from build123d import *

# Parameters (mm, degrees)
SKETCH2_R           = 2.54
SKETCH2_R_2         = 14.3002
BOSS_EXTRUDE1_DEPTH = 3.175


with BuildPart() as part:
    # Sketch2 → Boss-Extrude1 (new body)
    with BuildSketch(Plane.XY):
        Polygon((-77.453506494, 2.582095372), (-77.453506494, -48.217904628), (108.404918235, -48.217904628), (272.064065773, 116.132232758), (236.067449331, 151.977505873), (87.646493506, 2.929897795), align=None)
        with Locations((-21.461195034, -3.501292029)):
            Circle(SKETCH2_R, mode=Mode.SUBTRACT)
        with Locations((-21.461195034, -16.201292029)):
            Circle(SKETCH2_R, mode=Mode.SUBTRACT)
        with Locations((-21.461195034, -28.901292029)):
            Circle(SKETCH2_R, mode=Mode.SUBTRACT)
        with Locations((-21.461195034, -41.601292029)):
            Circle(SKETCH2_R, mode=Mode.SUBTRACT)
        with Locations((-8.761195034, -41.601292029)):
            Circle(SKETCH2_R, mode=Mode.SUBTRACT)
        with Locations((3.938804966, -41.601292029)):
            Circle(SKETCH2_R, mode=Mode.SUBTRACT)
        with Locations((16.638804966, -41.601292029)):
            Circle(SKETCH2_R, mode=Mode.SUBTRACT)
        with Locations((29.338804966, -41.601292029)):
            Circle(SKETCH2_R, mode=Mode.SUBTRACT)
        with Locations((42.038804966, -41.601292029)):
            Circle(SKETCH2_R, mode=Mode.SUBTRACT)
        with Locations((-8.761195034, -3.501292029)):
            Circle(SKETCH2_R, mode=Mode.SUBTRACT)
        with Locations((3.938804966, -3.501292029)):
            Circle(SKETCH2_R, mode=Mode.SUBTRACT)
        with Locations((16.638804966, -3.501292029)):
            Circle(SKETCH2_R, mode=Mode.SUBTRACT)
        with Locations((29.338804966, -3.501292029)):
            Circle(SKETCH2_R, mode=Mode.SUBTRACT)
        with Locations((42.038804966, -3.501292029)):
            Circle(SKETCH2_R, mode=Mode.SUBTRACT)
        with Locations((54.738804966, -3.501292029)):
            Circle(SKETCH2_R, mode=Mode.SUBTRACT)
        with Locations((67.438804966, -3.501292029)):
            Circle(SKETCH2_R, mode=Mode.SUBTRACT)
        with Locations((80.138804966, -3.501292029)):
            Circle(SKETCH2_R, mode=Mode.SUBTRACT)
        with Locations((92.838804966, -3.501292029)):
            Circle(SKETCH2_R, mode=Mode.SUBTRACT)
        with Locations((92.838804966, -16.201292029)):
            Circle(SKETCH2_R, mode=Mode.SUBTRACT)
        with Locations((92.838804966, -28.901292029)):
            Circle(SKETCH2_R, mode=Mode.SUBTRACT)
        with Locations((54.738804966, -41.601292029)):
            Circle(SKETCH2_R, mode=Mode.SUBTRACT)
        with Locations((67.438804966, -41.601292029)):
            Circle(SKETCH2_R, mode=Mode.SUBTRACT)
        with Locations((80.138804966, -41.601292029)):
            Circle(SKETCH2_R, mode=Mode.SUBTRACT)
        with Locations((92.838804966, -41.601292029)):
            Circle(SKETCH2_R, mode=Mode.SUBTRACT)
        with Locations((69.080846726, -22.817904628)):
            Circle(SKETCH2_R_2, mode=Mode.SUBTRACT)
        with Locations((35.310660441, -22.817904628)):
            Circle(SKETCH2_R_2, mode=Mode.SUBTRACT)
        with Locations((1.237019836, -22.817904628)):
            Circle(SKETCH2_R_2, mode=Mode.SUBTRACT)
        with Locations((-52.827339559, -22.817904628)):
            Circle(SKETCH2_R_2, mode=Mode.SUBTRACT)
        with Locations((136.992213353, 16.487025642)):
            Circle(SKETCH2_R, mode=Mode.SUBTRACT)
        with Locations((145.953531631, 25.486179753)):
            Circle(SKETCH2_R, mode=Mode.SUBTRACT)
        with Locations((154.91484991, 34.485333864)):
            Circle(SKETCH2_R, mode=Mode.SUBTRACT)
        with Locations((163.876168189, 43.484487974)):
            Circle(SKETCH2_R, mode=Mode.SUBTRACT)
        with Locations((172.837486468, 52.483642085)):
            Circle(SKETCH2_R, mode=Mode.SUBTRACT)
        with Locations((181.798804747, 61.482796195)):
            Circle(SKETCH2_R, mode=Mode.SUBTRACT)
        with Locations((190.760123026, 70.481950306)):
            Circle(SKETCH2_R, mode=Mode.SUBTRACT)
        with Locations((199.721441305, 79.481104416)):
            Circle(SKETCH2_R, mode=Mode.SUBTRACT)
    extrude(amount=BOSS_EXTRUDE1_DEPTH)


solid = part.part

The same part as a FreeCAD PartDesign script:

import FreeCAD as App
import Part
import Sketcher
from FreeCAD import Vector
Q = App.Units.Quantity


def add_polygon(sketch, points):
    """Adds a closed chain of lines whose ends are joined by coincident constraints."""
    first, n = sketch.GeometryCount, len(points)
    for a, b in zip(points, points[1:] + points[:1]):
        sketch.addGeometry(Part.LineSegment(App.Vector(*a, 0), App.Vector(*b, 0)), False)
    for i in range(n):
        sketch.addConstraint(Sketcher.Constraint("Coincident", first + i, 2, first + (i + 1) % n, 1))

doc = App.newDocument("Part")
body = doc.addObject("PartDesign::Body", "Body")

# Sketch on XY plane
sketch1 = body.newObject("Sketcher::SketchObject", "Sketch")
sketch1.AttachmentSupport = (doc.getObject("XY_Plane"), [""])
sketch1.MapMode = "FlatFace"
add_polygon(sketch1, [(-77.5, 2.6), (-77.5, -48.2), (108.4, -48.2), (272.1, 116.1), (236.1, 152), (87.6, 2.9)])  # lines 0-5
sketch1.addGeometry(Part.Circle(Vector(-21.5, -41.6, 0), Vector(0, 0, 1), 2.5), False)  # 6
sketch1.addGeometry(Part.Circle(Vector(-8.8, -41.6, 0), Vector(0, 0, 1), 2.5), False)  # 7
sketch1.addGeometry(Part.Circle(Vector(-21.5, -28.9, 0), Vector(0, 0, 1), 2.5), False)  # 8
sketch1.addGeometry(Part.Circle(Vector(-52.8, -22.8, 0), Vector(0, 0, 1), 14.3), False)  # 9
sketch1.addGeometry(Part.Circle(Vector(-21.5, -16.2, 0), Vector(0, 0, 1), 2.5), False)  # 10
sketch1.addGeometry(Part.Circle(Vector(3.9, -41.6, 0), Vector(0, 0, 1), 2.5), False)  # 11
sketch1.addGeometry(Part.Circle(Vector(16.6, -41.6, 0), Vector(0, 0, 1), 2.5), False)  # 12
sketch1.addGeometry(Part.Circle(Vector(29.3, -41.6, 0), Vector(0, 0, 1), 2.5), False)  # 13
sketch1.addGeometry(Part.Circle(Vector(42, -41.6, 0), Vector(0, 0, 1), 2.5), False)  # 14
sketch1.addGeometry(Part.Circle(Vector(54.7, -41.6, 0), Vector(0, 0, 1), 2.5), False)  # 15
sketch1.addGeometry(Part.Circle(Vector(67.4, -41.6, 0), Vector(0, 0, 1), 2.5), False)  # 16
sketch1.addGeometry(Part.Circle(Vector(1.2, -22.8, 0), Vector(0, 0, 1), 14.3), False)  # 17
sketch1.addGeometry(Part.Circle(Vector(35.3, -22.8, 0), Vector(0, 0, 1), 14.3), False)  # 18
sketch1.addGeometry(Part.Circle(Vector(-21.5, -3.5, 0), Vector(0, 0, 1), 2.5), False)  # 19
sketch1.addGeometry(Part.Circle(Vector(-8.8, -3.5, 0), Vector(0, 0, 1), 2.5), False)  # 20
sketch1.addGeometry(Part.Circle(Vector(3.9, -3.5, 0), Vector(0, 0, 1), 2.5), False)  # 21
sketch1.addGeometry(Part.Circle(Vector(16.6, -3.5, 0), Vector(0, 0, 1), 2.5), False)  # 22
sketch1.addGeometry(Part.Circle(Vector(29.3, -3.5, 0), Vector(0, 0, 1), 2.5), False)  # 23
sketch1.addGeometry(Part.Circle(Vector(42, -3.5, 0), Vector(0, 0, 1), 2.5), False)  # 24
sketch1.addGeometry(Part.Circle(Vector(54.7, -3.5, 0), Vector(0, 0, 1), 2.5), False)  # 25
sketch1.addGeometry(Part.Circle(Vector(67.4, -3.5, 0), Vector(0, 0, 1), 2.5), False)  # 26
sketch1.addGeometry(Part.Circle(Vector(80.1, -41.6, 0), Vector(0, 0, 1), 2.5), False)  # 27
sketch1.addGeometry(Part.Circle(Vector(92.8, -41.6, 0), Vector(0, 0, 1), 2.5), False)  # 28
sketch1.addGeometry(Part.Circle(Vector(92.8, -28.9, 0), Vector(0, 0, 1), 2.5), False)  # 29
sketch1.addGeometry(Part.Circle(Vector(69.1, -22.8, 0), Vector(0, 0, 1), 14.3), False)  # 30
sketch1.addGeometry(Part.Circle(Vector(92.8, -16.2, 0), Vector(0, 0, 1), 2.5), False)  # 31
sketch1.addGeometry(Part.Circle(Vector(80.1, -3.5, 0), Vector(0, 0, 1), 2.5), False)  # 32
sketch1.addGeometry(Part.Circle(Vector(92.8, -3.5, 0), Vector(0, 0, 1), 2.5), False)  # 33
sketch1.addGeometry(Part.Circle(Vector(137, 16.5, 0), Vector(0, 0, 1), 2.5), False)  # 34
sketch1.addGeometry(Part.Circle(Vector(146, 25.5, 0), Vector(0, 0, 1), 2.5), False)  # 35
sketch1.addGeometry(Part.Circle(Vector(154.9, 34.5, 0), Vector(0, 0, 1), 2.5), False)  # 36
sketch1.addGeometry(Part.Circle(Vector(163.9, 43.5, 0), Vector(0, 0, 1), 2.5), False)  # 37
sketch1.addGeometry(Part.Circle(Vector(172.8, 52.5, 0), Vector(0, 0, 1), 2.5), False)  # 38
sketch1.addGeometry(Part.Circle(Vector(181.8, 61.5, 0), Vector(0, 0, 1), 2.5), False)  # 39
sketch1.addGeometry(Part.Circle(Vector(190.8, 70.5, 0), Vector(0, 0, 1), 2.5), False)  # 40
sketch1.addGeometry(Part.Circle(Vector(199.7, 79.5, 0), Vector(0, 0, 1), 2.5), False)  # 41
sketch1.addConstraint([
    Sketcher.Constraint("Vertical", 0),
    Sketcher.Constraint("Horizontal", 1),
    Sketcher.Constraint("Equal", 6, 7),
    Sketcher.Constraint("Equal", 7, 8),
    Sketcher.Constraint("Equal", 8, 10),
    Sketcher.Constraint("Equal", 10, 11),
    Sketcher.Constraint("Equal", 11, 12),
    Sketcher.Constraint("Equal", 12, 13),
    Sketcher.Constraint("Equal", 13, 14),
    Sketcher.Constraint("Equal", 14, 15),
    Sketcher.Constraint("Equal", 15, 16),
    Sketcher.Constraint("Equal", 9, 17),
    Sketcher.Constraint("Equal", 17, 18),
    Sketcher.Constraint("Equal", 16, 19),
    Sketcher.Constraint("Equal", 19, 20),
    Sketcher.Constraint("Equal", 20, 21),
    Sketcher.Constraint("Equal", 21, 22),
    Sketcher.Constraint("Equal", 22, 23),
    Sketcher.Constraint("Equal", 23, 24),
    Sketcher.Constraint("Equal", 24, 25),
    Sketcher.Constraint("Equal", 25, 26),
    Sketcher.Constraint("Equal", 26, 27),
    Sketcher.Constraint("Equal", 27, 28),
    Sketcher.Constraint("Equal", 28, 29),
    Sketcher.Constraint("Equal", 18, 30),
    Sketcher.Constraint("Equal", 29, 31),
    Sketcher.Constraint("Equal", 31, 32),
    Sketcher.Constraint("Equal", 32, 33),
    Sketcher.Constraint("Equal", 33, 34),
    Sketcher.Constraint("Equal", 34, 35),
    Sketcher.Constraint("Equal", 35, 36),
    Sketcher.Constraint("Equal", 36, 37),
    Sketcher.Constraint("Equal", 37, 38),
    Sketcher.Constraint("Equal", 38, 39),
    Sketcher.Constraint("Equal", 39, 40),
    Sketcher.Constraint("Equal", 40, 41),
    Sketcher.Constraint("Perpendicular", 2, 3),
    Sketcher.Constraint("Perpendicular", 3, 4),
    Sketcher.Constraint("Horizontal", 6, 3, 7, 3),
    Sketcher.Constraint("Horizontal", 7, 3, 11, 3),
    Sketcher.Constraint("Horizontal", 11, 3, 12, 3),
    Sketcher.Constraint("Horizontal", 12, 3, 13, 3),
    Sketcher.Constraint("Horizontal", 13, 3, 14, 3),
    Sketcher.Constraint("Horizontal", 14, 3, 15, 3),
    Sketcher.Constraint("Horizontal", 15, 3, 16, 3),
    Sketcher.Constraint("Horizontal", 9, 3, 17, 3),
    Sketcher.Constraint("Horizontal", 17, 3, 18, 3),
    Sketcher.Constraint("Horizontal", 19, 3, 20, 3),
    Sketcher.Constraint("Horizontal", 20, 3, 21, 3),
    Sketcher.Constraint("Horizontal", 21, 3, 22, 3),
    Sketcher.Constraint("Horizontal", 22, 3, 23, 3),
    Sketcher.Constraint("Horizontal", 23, 3, 24, 3),
    Sketcher.Constraint("Horizontal", 24, 3, 25, 3),
    Sketcher.Constraint("Horizontal", 25, 3, 26, 3),
    Sketcher.Constraint("Horizontal", 16, 3, 27, 3),
    Sketcher.Constraint("Horizontal", 27, 3, 28, 3),
    Sketcher.Constraint("Horizontal", 8, 3, 29, 3),
    Sketcher.Constraint("Horizontal", 18, 3, 30, 3),
    Sketcher.Constraint("Horizontal", 10, 3, 31, 3),
    Sketcher.Constraint("Horizontal", 26, 3, 32, 3),
    Sketcher.Constraint("Horizontal", 32, 3, 33, 3),
    Sketcher.Constraint("Vertical", 6, 3, 8, 3),
    Sketcher.Constraint("Vertical", 8, 3, 10, 3),
    Sketcher.Constraint("Vertical", 10, 3, 19, 3),
    Sketcher.Constraint("Vertical", 7, 3, 20, 3),
    Sketcher.Constraint("Vertical", 11, 3, 21, 3),
    Sketcher.Constraint("Vertical", 12, 3, 22, 3),
    Sketcher.Constraint("Vertical", 13, 3, 23, 3),
    Sketcher.Constraint("Vertical", 14, 3, 24, 3),
    Sketcher.Constraint("Vertical", 15, 3, 25, 3),
    Sketcher.Constraint("Vertical", 16, 3, 26, 3),
    Sketcher.Constraint("Vertical", 28, 3, 29, 3),
    Sketcher.Constraint("Vertical", 29, 3, 31, 3),
    Sketcher.Constraint("Vertical", 27, 3, 32, 3),
    Sketcher.Constraint("Vertical", 31, 3, 33, 3),
    Sketcher.Constraint("Diameter", 6, Q("0.2 in")),
    Sketcher.Constraint("DistanceY", 0, 2, 0, 1, Q("2 in")),
    Sketcher.Constraint("Distance", 3, Q("2 in")),
    Sketcher.Constraint("Diameter", 9, Q("1.126 in")),
    Sketcher.Constraint("DistanceY", 6, 3, 10, 3, Q("1 in")),
    Sketcher.Constraint("DistanceX", 6, 3, 11, 3, Q("1 in")),
    Sketcher.Constraint("DistanceX", 7, 3, 12, 3, Q("1 in")),
    Sketcher.Constraint("DistanceX", 11, 3, 13, 3, Q("1 in")),
    Sketcher.Constraint("DistanceX", 12, 3, 14, 3, Q("1 in")),
    Sketcher.Constraint("DistanceX", 13, 3, 15, 3, Q("1 in")),
    Sketcher.Constraint("DistanceX", 14, 3, 16, 3, Q("1 in")),
    Sketcher.Constraint("DistanceY", 8, 3, 19, 3, Q("1 in")),
    Sketcher.Constraint("DistanceX", 15, 3, 27, 3, Q("1 in")),
    Sketcher.Constraint("DistanceX", 16, 3, 28, 3, Q("1 in")),
    Sketcher.Constraint("DistanceY", 0, 2, 9, 3, Q("1 in")),
    Sketcher.Constraint("DistanceX", 6, 3, 7, 3, Q("0.5 in")),
    Sketcher.Constraint("DistanceY", 6, 3, 8, 3, Q("0.5 in")),
    Sketcher.Constraint("DistanceY", 41, 3, 3, 2, Q("72.496401 mm")),
    Sketcher.Constraint("DistanceX", 1, 1, 1, 2, Q("185.858425 mm")),
    Sketcher.Constraint("DistanceX", 9, 3, -1, 1, Q("52.82734 mm")),
    Sketcher.Constraint("DistanceX", -1, 1, 17, 3, Q("1.23702 mm")),
    Sketcher.Constraint("DistanceX", -1, 1, 18, 3, Q("35.31066 mm")),
    Sketcher.Constraint("DistanceX", -1, 1, 35, 3, Q("145.953532 mm")),
    Sketcher.Constraint("DistanceY", -1, 1, 35, 3, Q("25.48618 mm")),
    Sketcher.Constraint("DistanceX", -1, 1, 36, 3, Q("154.91485 mm")),
    Sketcher.Constraint("DistanceX", -1, 1, 37, 3, Q("163.876168 mm")),
    Sketcher.Constraint("DistanceY", -1, 1, 40, 3, Q("70.48195 mm")),
    Sketcher.Constraint("DistanceX", -1, 1, 41, 3, Q("199.721441 mm")),
    Sketcher.Constraint("DistanceX", -1, 1, 1, 2, Q("108.404918 mm")),
    Sketcher.Constraint("DistanceX", -1, 1, 3, 2, Q("236.067449 mm")),
    Sketcher.Constraint("DistanceX", 16, 3, 30, 3, Q("1.642042 mm")),
    Sketcher.Constraint("DistanceX", 33, 3, 34, 3, Q("44.153408 mm")),
    Sketcher.Constraint("DistanceX", 34, 3, 35, 3, Q("8.961318 mm")),
    Sketcher.Constraint("DistanceY", 33, 3, 35, 3, Q("28.987472 mm")),
    Sketcher.Constraint("DistanceY", 34, 3, 36, 3, Q("17.998308 mm")),
    Sketcher.Constraint("DistanceY", 35, 3, 37, 3, Q("17.998308 mm")),
    Sketcher.Constraint("DistanceX", 37, 3, 38, 3, Q("8.961318 mm")),
    Sketcher.Constraint("DistanceY", 36, 3, 38, 3, Q("17.998308 mm")),
    Sketcher.Constraint("DistanceX", 38, 3, 39, 3, Q("8.961318 mm")),
    Sketcher.Constraint("DistanceY", 37, 3, 39, 3, Q("17.998308 mm")),
    Sketcher.Constraint("DistanceY", 34, 3, 39, 3, Q("44.995771 mm")),
    Sketcher.Constraint("DistanceX", 39, 3, 40, 3, Q("8.961318 mm")),
    Sketcher.Constraint("DistanceY", 39, 3, 41, 3, Q("17.998308 mm")),
    Sketcher.Constraint("DistanceY", 41, 3, 2, 2, Q("36.651128 mm")),
    Sketcher.Constraint("DistanceX", 4, 2, 33, 3, Q("5.192311 mm")),
])
pad1 = body.newObject("PartDesign::Pad", "Pad")
pad1.Profile = sketch1
pad1.Length = Q("0.125 in")

doc.recompute()
